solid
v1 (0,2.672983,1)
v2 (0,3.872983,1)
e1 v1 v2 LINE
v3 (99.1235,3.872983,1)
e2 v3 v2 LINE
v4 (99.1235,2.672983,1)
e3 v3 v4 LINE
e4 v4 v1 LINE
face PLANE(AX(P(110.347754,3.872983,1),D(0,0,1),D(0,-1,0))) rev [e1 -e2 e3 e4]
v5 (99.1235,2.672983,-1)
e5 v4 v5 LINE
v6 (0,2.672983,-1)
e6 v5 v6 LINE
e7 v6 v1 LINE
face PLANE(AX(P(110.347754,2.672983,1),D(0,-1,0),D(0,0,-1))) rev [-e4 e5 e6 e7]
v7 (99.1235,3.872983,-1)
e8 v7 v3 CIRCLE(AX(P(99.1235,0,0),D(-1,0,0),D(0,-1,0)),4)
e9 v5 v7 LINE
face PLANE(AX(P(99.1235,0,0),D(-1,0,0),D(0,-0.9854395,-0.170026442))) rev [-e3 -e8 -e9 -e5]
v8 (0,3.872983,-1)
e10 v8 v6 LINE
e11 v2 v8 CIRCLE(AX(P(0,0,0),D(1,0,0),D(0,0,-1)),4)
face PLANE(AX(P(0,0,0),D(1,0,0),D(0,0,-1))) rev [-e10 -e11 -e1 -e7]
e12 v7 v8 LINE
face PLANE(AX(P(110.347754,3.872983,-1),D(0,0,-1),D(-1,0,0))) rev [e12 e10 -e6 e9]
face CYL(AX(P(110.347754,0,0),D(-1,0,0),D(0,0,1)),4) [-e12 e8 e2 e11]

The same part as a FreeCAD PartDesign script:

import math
import FreeCAD as App
import Part
import Sketcher
Q = App.Units.Quantity

doc = App.newDocument("Part")
body = doc.addObject("PartDesign::Body", "Body")

# Sketch on YZ plane
sketch1 = body.newObject("Sketcher::SketchObject", "Sketch")
sketch1.AttachmentSupport = (doc.getObject("YZ_Plane"), [""])
sketch1.MapMode = "FlatFace"
sketch1.addGeometry([
    Part.LineSegment(App.Vector(2.672983, 1, 0), App.Vector(3.872983, 1, 0)),
    Part.ArcOfCircle(Part.Circle(App.Vector(0, 0, 0), App.Vector(0, 0, 1), 4), math.radians(14.477512), math.radians(345.522488)),
    Part.LineSegment(App.Vector(3.872983, -1, 0), App.Vector(2.672983, -1, 0)),
    Part.LineSegment(App.Vector(2.672983, -1, 0), App.Vector(2.672983, 1, 0)),
], False)
sketch1.addConstraint([
    Sketcher.Constraint("Coincident", 0, 2, 1, 1),
    Sketcher.Constraint("Coincident", 1, 2, 2, 1),
    Sketcher.Constraint("Coincident", 2, 2, 3, 1),
    Sketcher.Constraint("Coincident", 3, 2, 0, 1),
    Sketcher.Constraint("Horizontal", 0),
    Sketcher.Constraint("Horizontal", 2),
    Sketcher.Constraint("Vertical", 3),
    Sketcher.Constraint("Coincident", 1, 3, -1, 1),
    Sketcher.Constraint("Vertical", 0, 2, 1, 2),
    Sketcher.Constraint("Radius", 1, Q("4 mm")),
    Sketcher.Constraint("DistanceY", 3, 1, 3, 2, Q("2 mm")),
    Sketcher.Constraint("DistanceX", 0, 1, 0, 2, Q("1.2 mm")),
])
pad1 = body.newObject("PartDesign::Pad", "Pad")
pad1.Profile = sketch1
pad1.Length = 99.1235

doc.recompute()
